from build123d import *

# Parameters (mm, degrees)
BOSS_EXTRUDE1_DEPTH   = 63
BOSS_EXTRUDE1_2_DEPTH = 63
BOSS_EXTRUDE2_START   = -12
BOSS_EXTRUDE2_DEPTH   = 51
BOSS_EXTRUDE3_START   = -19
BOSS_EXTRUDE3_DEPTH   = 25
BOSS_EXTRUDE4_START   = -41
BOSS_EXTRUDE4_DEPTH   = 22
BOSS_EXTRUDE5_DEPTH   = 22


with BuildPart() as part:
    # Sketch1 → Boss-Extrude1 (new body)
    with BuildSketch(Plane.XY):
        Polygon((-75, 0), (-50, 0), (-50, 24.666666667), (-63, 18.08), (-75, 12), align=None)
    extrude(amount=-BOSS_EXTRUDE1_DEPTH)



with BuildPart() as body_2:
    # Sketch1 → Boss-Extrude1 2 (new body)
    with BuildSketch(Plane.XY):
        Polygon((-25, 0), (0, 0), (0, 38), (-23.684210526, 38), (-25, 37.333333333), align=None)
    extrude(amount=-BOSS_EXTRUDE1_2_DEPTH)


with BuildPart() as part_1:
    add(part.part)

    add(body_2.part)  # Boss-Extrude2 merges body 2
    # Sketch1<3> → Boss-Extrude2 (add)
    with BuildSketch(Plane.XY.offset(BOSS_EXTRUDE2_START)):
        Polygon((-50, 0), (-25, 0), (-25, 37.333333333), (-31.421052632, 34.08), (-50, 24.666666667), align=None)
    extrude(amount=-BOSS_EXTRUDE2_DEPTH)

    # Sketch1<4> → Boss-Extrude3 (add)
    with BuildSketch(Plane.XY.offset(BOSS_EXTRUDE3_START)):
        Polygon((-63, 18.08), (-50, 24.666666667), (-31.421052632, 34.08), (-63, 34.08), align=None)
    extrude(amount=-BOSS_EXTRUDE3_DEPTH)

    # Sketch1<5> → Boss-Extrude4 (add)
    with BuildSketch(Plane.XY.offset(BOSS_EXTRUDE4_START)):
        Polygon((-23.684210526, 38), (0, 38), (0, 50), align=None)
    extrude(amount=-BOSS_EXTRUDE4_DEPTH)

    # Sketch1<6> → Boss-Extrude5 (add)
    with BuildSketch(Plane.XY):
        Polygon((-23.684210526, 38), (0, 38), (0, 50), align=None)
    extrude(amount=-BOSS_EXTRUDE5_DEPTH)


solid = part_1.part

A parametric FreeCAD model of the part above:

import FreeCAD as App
import Part
import Sketcher

V = App.Vector


def add_polygon(sketch, points):
    """Adds a closed chain of lines whose ends are joined by coincident constraints."""
    first, n = sketch.GeometryCount, len(points)
    for a, b in zip(points, points[1:] + points[:1]):
        sketch.addGeometry(Part.LineSegment(App.Vector(*a, 0), App.Vector(*b, 0)), False)
    for i in range(n):
        sketch.addConstraint(Sketcher.Constraint("Coincident", first + i, 2, first + (i + 1) % n, 1))

doc = App.newDocument("Part")
body = doc.addObject("PartDesign::Body", "Body")

# Sketch on XY plane
sketch1 = doc.addObject("Sketcher::SketchObject", "Sketch")
body.addObject(sketch1)
sketch1.AttachmentSupport = (doc.XY_Plane, [""])
sketch1.MapMode = "FlatFace"
add_polygon(sketch1, [(-75, 0), (-50, 0), (-50, 25), (-63, 18), (-75, 12)])  # lines 0-4
sketch1.addConstraint([
    Sketcher.Constraint("Horizontal", 0),
    Sketcher.Constraint("Vertical", 1),
    Sketcher.Constraint("Vertical", 4),
    Sketcher.Constraint("PointOnObject", 0, 2, -1),
    Sketcher.Constraint("Parallel", 2, 3),
    Sketcher.Constraint("DistanceX", 0, 1, 0, 2, 25.0),
    Sketcher.Constraint("DistanceY", 4, 2, 4, 1, 12.0),
    Sketcher.Constraint("DistanceX", 0, 2, -1, 1, 50.0),
    Sketcher.Constraint("DistanceX", 2, 2, -1, 1, 63.0),
    Sketcher.Constraint("DistanceY", -1, 1, 2, 2, 18.08),
])
pad1 = doc.addObject("PartDesign::Pad", "Pad")
body.addObject(pad1)
pad1.Profile = sketch1
pad1.Length = 63
pad1.Reversed = True
body2 = doc.addObject("PartDesign::Body", "Body001")

# Sketch on XY plane
sketch2 = doc.addObject("Sketcher::SketchObject", "Sketch001")
body2.addObject(sketch2)
sketch2.AttachmentSupport = (doc.getObject("XY_Plane001"), [""])
sketch2.MapMode = "FlatFace"
add_polygon(sketch2, [(-25, 0), (0, 0), (0, 38), (-23.7, 38), (-25, 37.3)])  # lines 0-4
sketch2.addConstraint([
    Sketcher.Constraint("Horizontal", 0),
    Sketcher.Constraint("Vertical", 1),
    Sketcher.Constraint("Horizontal", 2),
    Sketcher.Constraint("Vertical", 4),
    Sketcher.Constraint("Coincident", 0, 2, -1, 1),
    Sketcher.Constraint("DistanceX", 0, 1, 0, 2, 25.0),
    Sketcher.Constraint("DistanceY", 1, 1, 1, 2, 38.0),
    Sketcher.Constraint("DistanceX", 2, 2, 2, 1, 23.684211),
    Sketcher.Constraint("Distance", 3, 1.475041),
])
pad2 = doc.addObject("PartDesign::Pad", "Pad001")
body2.addObject(pad2)
pad2.Profile = sketch2
pad2.Length = 63
pad2.Reversed = True
body.AllowCompound = True
doc.recompute()

boolean = doc.addObject("PartDesign::Boolean", "Boolean")
body.addObject(boolean)
boolean.Type = "Fuse"
boolean.addObjects([body2])

# Sketch on XY plane
sketch3 = doc.addObject("Sketcher::SketchObject", "Sketch002")
body.addObject(sketch3)
sketch3.AttachmentSupport = (doc.XY_Plane, [""])
sketch3.MapMode = "FlatFace"
sketch3.AttachmentOffset = App.Placement(V(0, 0, -12), App.Rotation())
add_polygon(sketch3, [(-50, 0), (-25, 0), (-25, 37), (-31, 34), (-50, 25)])  # lines 0-4
sketch3.addConstraint([
    Sketcher.Constraint("Horizontal", 0),
    Sketcher.Constraint("Vertical", 1),
    Sketcher.Constraint("Vertical", 4),
    Sketcher.Constraint("PointOnObject", 0, 2, -1),
    Sketcher.Constraint("Parallel", 2, 3),
    Sketcher.Constraint("DistanceX", 0, 1, 0, 2, 25.0),
    Sketcher.Constraint("DistanceX", 0, 2, -1, 1, 25.0),
    Sketcher.Constraint("DistanceY", -1, 1, 2, 2, 34.08),
    Sketcher.Constraint("Distance", 2, 7.198201),
    Sketcher.Constraint("Distance", 3, 20.827581),
])
pad3 = doc.addObject("PartDesign::Pad", "Pad002")
body.addObject(pad3)
pad3.Profile = sketch3
pad3.Length = 51
pad3.Reversed = True

# Sketch on XY plane
sketch4 = doc.addObject("Sketcher::SketchObject", "Sketch003")
body.addObject(sketch4)
sketch4.AttachmentSupport = (doc.XY_Plane, [""])
sketch4.MapMode = "FlatFace"
sketch4.AttachmentOffset = App.Placement(V(0, 0, -19), App.Rotation())
add_polygon(sketch4, [(-63, 18), (-50, 25), (-31, 34), (-63, 34)])  # lines 0-3
sketch4.addConstraint([
    Sketcher.Constraint("Horizontal", 2),
    Sketcher.Constraint("Vertical", 3),
    Sketcher.Constraint("Parallel", 0, 1),
    Sketcher.Constraint("DistanceY", 3, 2, 3, 1, 16.0),
    Sketcher.Constraint("DistanceX", 0, 2, -1, 1, 50.0),
    Sketcher.Constraint("DistanceX", 2, 2, -1, 1, 63.0),
    Sketcher.Constraint("DistanceY", -1, 1, 1, 2, 34.08),
    Sketcher.Constraint("Distance", 1, 20.827581),
])
pad4 = doc.addObject("PartDesign::Pad", "Pad003")
body.addObject(pad4)
pad4.Profile = sketch4
pad4.Length = 25
pad4.Reversed = True

# Sketch on XY plane
sketch5 = doc.addObject("Sketcher::SketchObject", "Sketch004")
body.addObject(sketch5)
sketch5.AttachmentSupport = (doc.XY_Plane, [""])
sketch5.MapMode = "FlatFace"
sketch5.AttachmentOffset = App.Placement(V(0, 0, -41), App.Rotation())
add_polygon(sketch5, [(-24, 38), (0, 38), (0, 50)])  # lines 0-2
sketch5.addConstraint([
    Sketcher.Constraint("Horizontal", 0),
    Sketcher.Constraint("Vertical", 1),
    Sketcher.Constraint("PointOnObject", 0, 2, -2),
    Sketcher.Constraint("DistanceY", 1, 1, 1, 2, 12.0),
    Sketcher.Constraint("DistanceY", -1, 1, 0, 2, 38.0),
    Sketcher.Constraint("DistanceX", 0, 1, 0, 2, 23.684211),
])
pad5 = doc.addObject("PartDesign::Pad", "Pad004")
body.addObject(pad5)
pad5.Profile = sketch5
pad5.Length = 22
pad5.Reversed = True

# Sketch on XY plane
sketch6 = doc.addObject("Sketcher::SketchObject", "Sketch005")
body.addObject(sketch6)
sketch6.AttachmentSupport = (doc.XY_Plane, [""])
sketch6.MapMode = "FlatFace"
add_polygon(sketch6, [(-24, 38), (0, 38), (0, 50)])  # lines 0-2
sketch6.addConstraint([
    Sketcher.Constraint("Horizontal", 0),
    Sketcher.Constraint("Vertical", 1),
    Sketcher.Constraint("PointOnObject", 0, 2, -2),
    Sketcher.Constraint("DistanceY", 1, 1, 1, 2, 12.0),
    Sketcher.Constraint("DistanceY", -1, 1, 0, 2, 38.0),
    Sketcher.Constraint("DistanceX", 0, 1, 0, 2, 23.684211),
])
pad6 = doc.addObject("PartDesign::Pad", "Pad005")
body.addObject(pad6)
pad6.Profile = sketch6
pad6.Length = 22
pad6.Reversed = True

doc.recompute()
